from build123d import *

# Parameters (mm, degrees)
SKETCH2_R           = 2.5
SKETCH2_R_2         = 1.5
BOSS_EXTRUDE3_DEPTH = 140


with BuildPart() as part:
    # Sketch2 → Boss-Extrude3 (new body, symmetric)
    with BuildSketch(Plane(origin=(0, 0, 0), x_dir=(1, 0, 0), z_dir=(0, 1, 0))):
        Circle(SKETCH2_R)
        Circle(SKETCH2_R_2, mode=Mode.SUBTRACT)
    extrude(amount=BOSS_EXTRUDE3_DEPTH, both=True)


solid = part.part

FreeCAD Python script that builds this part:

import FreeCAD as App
import Part
import Sketcher
from FreeCAD import Vector
Q = App.Units.Quantity

doc = App.newDocument("Part")
params = doc.addObject("Spreadsheet::Sheet", "Params")
for row, (alias, value) in enumerate([
    ("sketch1_diameter", "5 mm"),
    ("sketch1_diameter2", "3 mm"),
    ("pad1_length", "280 mm"),
], start=1):
    params.set(f"A{row}", alias)
    params.set(f"B{row}", "=" + value)
    params.setAlias(f"B{row}", alias)

body = doc.addObject("PartDesign::Body", "Body")

sketch1 = body.newObject("Sketcher::SketchObject", "Sketch")
sketch1.AttachmentSupport = (doc.getObject("XZ_Plane"), [""])
sketch1.MapMode = "FlatFace"
sketch1.addGeometry(Part.Circle(Vector(0, 0, 0), Vector(0, 0, 1), 2.5), False)
sketch1.addGeometry(Part.Circle(Vector(0, 0, 0), Vector(0, 0, 1), 1.5), False)
sketch1.addConstraint(Sketcher.Constraint("Coincident", 0, 3, -1, 1))
sketch1.addConstraint(Sketcher.Constraint("Coincident", 1, 3, -1, 1))
sketch1.addConstraint(Sketcher.Constraint("Diameter", 0, Q("5 mm")))
sketch1.addConstraint(Sketcher.Constraint("Diameter", 1, Q("3 mm")))
sketch1.setExpression("Constraints[2]", "Params.sketch1_diameter")
sketch1.setExpression("Constraints[3]", "Params.sketch1_diameter2")
pad1 = body.newObject("PartDesign::Pad", "Pad")
pad1.Profile = sketch1
pad1.setExpression("Length", "Params.pad1_length")
pad1.Midplane = True

doc.recompute()
